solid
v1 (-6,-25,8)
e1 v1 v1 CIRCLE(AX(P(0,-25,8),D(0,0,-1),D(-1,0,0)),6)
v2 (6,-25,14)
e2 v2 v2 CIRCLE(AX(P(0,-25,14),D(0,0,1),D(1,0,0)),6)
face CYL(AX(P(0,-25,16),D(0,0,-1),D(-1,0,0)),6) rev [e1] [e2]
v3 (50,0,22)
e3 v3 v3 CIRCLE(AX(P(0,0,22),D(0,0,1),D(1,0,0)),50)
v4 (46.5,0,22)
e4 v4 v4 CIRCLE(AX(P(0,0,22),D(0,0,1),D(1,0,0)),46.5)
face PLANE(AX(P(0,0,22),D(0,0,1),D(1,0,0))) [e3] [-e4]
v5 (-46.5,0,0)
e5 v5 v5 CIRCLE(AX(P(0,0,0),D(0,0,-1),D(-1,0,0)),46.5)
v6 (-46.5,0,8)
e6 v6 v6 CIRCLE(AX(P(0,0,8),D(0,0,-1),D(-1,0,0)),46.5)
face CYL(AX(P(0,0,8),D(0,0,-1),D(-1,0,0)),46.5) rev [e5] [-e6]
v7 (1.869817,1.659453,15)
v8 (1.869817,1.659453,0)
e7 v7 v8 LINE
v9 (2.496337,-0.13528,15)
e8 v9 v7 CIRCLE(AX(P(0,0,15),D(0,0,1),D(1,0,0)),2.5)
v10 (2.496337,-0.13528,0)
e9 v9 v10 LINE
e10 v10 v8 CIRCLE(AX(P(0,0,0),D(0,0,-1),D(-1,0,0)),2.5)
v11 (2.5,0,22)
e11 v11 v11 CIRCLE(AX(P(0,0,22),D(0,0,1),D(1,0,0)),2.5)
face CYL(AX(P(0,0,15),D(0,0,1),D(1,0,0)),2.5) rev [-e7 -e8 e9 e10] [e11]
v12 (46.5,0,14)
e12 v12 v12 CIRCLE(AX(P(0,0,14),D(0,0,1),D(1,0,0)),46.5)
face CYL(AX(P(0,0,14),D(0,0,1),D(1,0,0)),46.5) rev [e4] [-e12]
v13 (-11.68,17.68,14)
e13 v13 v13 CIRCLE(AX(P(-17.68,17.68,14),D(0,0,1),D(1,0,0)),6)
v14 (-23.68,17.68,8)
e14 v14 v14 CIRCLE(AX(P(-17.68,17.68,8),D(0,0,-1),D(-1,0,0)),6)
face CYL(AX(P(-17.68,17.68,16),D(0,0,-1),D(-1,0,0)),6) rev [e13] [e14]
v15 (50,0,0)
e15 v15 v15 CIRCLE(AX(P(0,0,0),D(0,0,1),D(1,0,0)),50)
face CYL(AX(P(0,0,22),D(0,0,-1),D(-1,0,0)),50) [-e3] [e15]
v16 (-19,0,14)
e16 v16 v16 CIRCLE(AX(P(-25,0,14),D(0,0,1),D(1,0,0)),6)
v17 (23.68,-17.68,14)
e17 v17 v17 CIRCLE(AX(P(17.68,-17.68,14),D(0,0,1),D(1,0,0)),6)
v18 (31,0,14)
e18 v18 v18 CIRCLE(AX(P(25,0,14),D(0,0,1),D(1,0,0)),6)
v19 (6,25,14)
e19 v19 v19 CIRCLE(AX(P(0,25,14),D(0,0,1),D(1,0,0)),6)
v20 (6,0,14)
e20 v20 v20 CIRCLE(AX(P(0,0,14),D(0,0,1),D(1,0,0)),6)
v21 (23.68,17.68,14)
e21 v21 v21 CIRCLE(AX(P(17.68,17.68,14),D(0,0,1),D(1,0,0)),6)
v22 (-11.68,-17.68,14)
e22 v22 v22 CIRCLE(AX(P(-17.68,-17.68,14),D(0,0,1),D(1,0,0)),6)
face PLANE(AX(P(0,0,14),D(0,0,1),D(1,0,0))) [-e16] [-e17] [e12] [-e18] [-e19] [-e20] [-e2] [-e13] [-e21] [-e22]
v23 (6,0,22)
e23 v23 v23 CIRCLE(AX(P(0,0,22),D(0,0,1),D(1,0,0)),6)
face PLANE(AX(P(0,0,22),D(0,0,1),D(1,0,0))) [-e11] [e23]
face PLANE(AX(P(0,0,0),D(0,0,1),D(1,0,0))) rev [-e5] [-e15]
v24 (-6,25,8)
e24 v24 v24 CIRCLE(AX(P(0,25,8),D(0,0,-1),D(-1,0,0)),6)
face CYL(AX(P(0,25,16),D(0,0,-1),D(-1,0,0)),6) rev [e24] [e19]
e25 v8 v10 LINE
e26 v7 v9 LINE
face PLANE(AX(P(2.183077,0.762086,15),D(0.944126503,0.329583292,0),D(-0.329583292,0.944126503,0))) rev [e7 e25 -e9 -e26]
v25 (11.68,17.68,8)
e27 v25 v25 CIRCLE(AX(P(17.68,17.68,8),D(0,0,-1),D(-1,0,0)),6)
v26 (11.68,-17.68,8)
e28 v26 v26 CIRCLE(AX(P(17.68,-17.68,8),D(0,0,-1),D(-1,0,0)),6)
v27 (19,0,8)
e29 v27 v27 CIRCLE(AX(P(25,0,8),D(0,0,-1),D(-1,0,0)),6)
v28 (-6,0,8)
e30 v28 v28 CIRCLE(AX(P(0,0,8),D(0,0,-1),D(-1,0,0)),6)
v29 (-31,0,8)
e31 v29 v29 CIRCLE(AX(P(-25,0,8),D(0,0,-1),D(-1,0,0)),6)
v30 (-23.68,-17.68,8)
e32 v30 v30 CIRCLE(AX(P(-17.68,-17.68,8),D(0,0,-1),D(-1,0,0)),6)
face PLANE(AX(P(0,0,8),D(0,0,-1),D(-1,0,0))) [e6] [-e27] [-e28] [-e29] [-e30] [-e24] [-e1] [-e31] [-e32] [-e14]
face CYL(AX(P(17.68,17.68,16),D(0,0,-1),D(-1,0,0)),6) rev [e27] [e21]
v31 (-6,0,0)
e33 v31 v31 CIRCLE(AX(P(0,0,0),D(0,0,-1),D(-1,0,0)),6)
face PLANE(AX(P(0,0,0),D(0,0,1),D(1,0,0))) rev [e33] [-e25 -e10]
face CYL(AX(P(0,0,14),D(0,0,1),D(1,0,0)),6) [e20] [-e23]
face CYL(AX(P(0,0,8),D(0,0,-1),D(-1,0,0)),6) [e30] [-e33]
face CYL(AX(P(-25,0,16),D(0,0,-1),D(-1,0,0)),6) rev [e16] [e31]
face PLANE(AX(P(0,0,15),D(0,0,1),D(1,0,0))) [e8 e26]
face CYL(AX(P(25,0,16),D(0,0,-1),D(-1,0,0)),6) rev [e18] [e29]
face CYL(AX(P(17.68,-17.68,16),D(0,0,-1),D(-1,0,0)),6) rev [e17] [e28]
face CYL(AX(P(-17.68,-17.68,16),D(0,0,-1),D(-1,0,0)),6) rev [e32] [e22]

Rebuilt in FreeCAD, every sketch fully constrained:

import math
import FreeCAD as App
import Part
import Sketcher

doc = App.newDocument("Part")
body = doc.addObject("PartDesign::Body", "Body")

sketch1 = body.newObject("Sketcher::SketchObject", "Sketch")
sketch1.AttachmentSupport = (doc.getObject("XY_Plane"), [""])
sketch1.MapMode = "FlatFace"
sketch1.addGeometry(Part.Circle(App.Vector(0, 0, 0), App.Vector(0, 0, 1), 50), False)
sketch1.addConstraint([
    Sketcher.Constraint("Coincident", 0, 3, -1, 1),
    Sketcher.Constraint("Diameter", 0, 100.0),
])
pad1 = body.newObject("PartDesign::Pad", "Pad")
pad1.Profile = sketch1
pad1.Length = 22

sketch2 = body.newObject("Sketcher::SketchObject", "Sketch001")
sketch2.AttachmentSupport = (doc.getObject("XY_Plane"), [""])
sketch2.MapMode = "FlatFace"
sketch2.AttachmentOffset = App.Placement(App.Vector(0, 0, 22), App.Rotation())
sketch2.addGeometry(Part.Circle(App.Vector(0, 0, 0), App.Vector(0, 0, 1), 2.5), False)
sketch2.addConstraint([
    Sketcher.Constraint("Coincident", 0, 3, -1, 1),
    Sketcher.Constraint("Diameter", 0, 5.0),
])
pocket1 = body.newObject("PartDesign::Pocket", "Pocket")
pocket1.Profile = sketch2
pocket1.Length = 7

sketch3 = body.newObject("Sketcher::SketchObject", "Sketch002")
sketch3.AttachmentSupport = (doc.getObject("XY_Plane"), [""])
sketch3.MapMode = "FlatFace"
sketch3.AttachmentOffset = App.Placement(App.Vector(0, 0, 15), App.Rotation())
sketch3.addGeometry([
    Part.ArcOfCircle(Part.Circle(App.Vector(0, 0, 0), App.Vector(0, 0, 1), 2.5), math.radians(42), math.radians(180)),
    Part.LineSegment(App.Vector(1.9, 1.7, 0), App.Vector(2.5, -0.1, 0)),
    Part.ArcOfCircle(Part.Circle(App.Vector(0, 0, 0), App.Vector(0, 0, 1), 2.5), math.radians(-180), math.radians(-3)),
], False)
sketch3.addConstraint([
    Sketcher.Constraint("Coincident", 0, 1, 1, 1),
    Sketcher.Constraint("Coincident", 1, 2, 2, 2),
    Sketcher.Constraint("Tangent", 2, 1, 0, 2),
    Sketcher.Constraint("Coincident", 0, 3, -1, 1),
    Sketcher.Constraint("Equal", 0, 2),
    Sketcher.Constraint("PointOnObject", 2, 1, -1),
    Sketcher.Constraint("Radius", 0, 2.5),
    Sketcher.Constraint("DistanceY", 1, 2, -1, 1, 0.13528),
    Sketcher.Constraint("DistanceX", 0, 1, 1, 2, 0.62652),
])
pocket2 = body.newObject("PartDesign::Pocket", "Pocket001")
pocket2.Profile = sketch3
pocket2.Length = 15

sketch4 = body.newObject("Sketcher::SketchObject", "Sketch003")
sketch4.AttachmentSupport = (doc.getObject("XY_Plane"), [""])
sketch4.MapMode = "FlatFace"
sketch4.addGeometry([
    Part.Circle(App.Vector(0, 0, 0), App.Vector(0, 0, 1), 46),
    Part.Circle(App.Vector(0, 0, 0), App.Vector(0, 0, 1), 6),
], False)
sketch4.addConstraint([
    Sketcher.Constraint("Coincident", 0, 3, -1, 1),
    Sketcher.Constraint("Coincident", 1, 3, -1, 1),
    Sketcher.Constraint("Diameter", 0, 93.0),
    Sketcher.Constraint("Diameter", 1, 12.0),
])
pocket3 = body.newObject("PartDesign::Pocket", "Pocket002")
pocket3.Profile = sketch4
pocket3.Length = 8
pocket3.Reversed = True

sketch5 = body.newObject("Sketcher::SketchObject", "Sketch004")
sketch5.AttachmentSupport = (doc.getObject("XY_Plane"), [""])
sketch5.MapMode = "FlatFace"
sketch5.AttachmentOffset = App.Placement(App.Vector(0, 0, 14), App.Rotation())
sketch5.addGeometry([
    Part.Circle(App.Vector(0, 0, 0), App.Vector(0, 0, 1), 46),
    Part.Circle(App.Vector(0, 0, 0), App.Vector(0, 0, 1), 6),
], False)
sketch5.addConstraint([
    Sketcher.Constraint("Coincident", 0, 3, -1, 1),
    Sketcher.Constraint("Coincident", 1, 3, -1, 1),
    Sketcher.Constraint("Diameter", 0, 93.0),
    Sketcher.Constraint("Diameter", 1, 12.0),
])
pocket4 = body.newObject("PartDesign::Pocket", "Pocket003")
pocket4.Profile = sketch5
pocket4.Length = 8
pocket4.Reversed = True

sketch6 = body.newObject("Sketcher::SketchObject", "Sketch005")
sketch6.AttachmentSupport = (doc.getObject("XY_Plane"), [""])
sketch6.MapMode = "FlatFace"
sketch6.AttachmentOffset = App.Placement(App.Vector(0, 0, 8), App.Rotation())
sketch6.addGeometry(Part.Circle(App.Vector(25, 0, 0), App.Vector(0, 0, 1), 6), False)
sketch6.addConstraint([
    Sketcher.Constraint("PointOnObject", 0, 3, -1),
    Sketcher.Constraint("Diameter", 0, 12.0),
    Sketcher.Constraint("DistanceX", -1, 1, 0, 3, 25.0),
])
pocket5 = body.newObject("PartDesign::Pocket", "Pocket004")
pocket5.Profile = sketch6
pocket5.Length = 8
pocket5.Reversed = True

sketch7 = body.newObject("Sketcher::SketchObject", "Sketch006")
sketch7.AttachmentSupport = (doc.getObject("XY_Plane"), [""])
sketch7.MapMode = "FlatFace"
sketch7.AttachmentOffset = App.Placement(App.Vector(0, 0, 8), App.Rotation())
sketch7.addGeometry(Part.Circle(App.Vector(0, 25, 0), App.Vector(0, 0, 1), 6), False)
sketch7.addConstraint([
    Sketcher.Constraint("PointOnObject", 0, 3, -2),
    Sketcher.Constraint("Diameter", 0, 12.0),
    Sketcher.Constraint("DistanceY", -1, 1, 0, 3, 25.0),
])
pocket6 = body.newObject("PartDesign::Pocket", "Pocket005")
pocket6.Profile = sketch7
pocket6.Length = 8
pocket6.Reversed = True

sketch8 = body.newObject("Sketcher::SketchObject", "Sketch007")
sketch8.AttachmentSupport = (doc.getObject("XY_Plane"), [""])
sketch8.MapMode = "FlatFace"
sketch8.AttachmentOffset = App.Placement(App.Vector(0, 0, 8), App.Rotation())
sketch8.addGeometry(Part.Circle(App.Vector(-25, 0, 0), App.Vector(0, 0, 1), 6), False)
sketch8.addConstraint([
    Sketcher.Constraint("PointOnObject", 0, 3, -1),
    Sketcher.Constraint("Diameter", 0, 12.0),
    Sketcher.Constraint("DistanceX", 0, 3, -1, 1, 25.0),
])
pocket7 = body.newObject("PartDesign::Pocket", "Pocket006")
pocket7.Profile = sketch8
pocket7.Length = 8
pocket7.Reversed = True

sketch9 = body.newObject("Sketcher::SketchObject", "Sketch008")
sketch9.AttachmentSupport = (doc.getObject("XY_Plane"), [""])
sketch9.MapMode = "FlatFace"
sketch9.AttachmentOffset = App.Placement(App.Vector(0, 0, 8), App.Rotation())
sketch9.addGeometry(Part.Circle(App.Vector(0, -25, 0), App.Vector(0, 0, 1), 6), False)
sketch9.addConstraint([
    Sketcher.Constraint("PointOnObject", 0, 3, -2),
    Sketcher.Constraint("Diameter", 0, 12.0),
    Sketcher.Constraint("DistanceY", 0, 3, -1, 1, 25.0),
])
pocket8 = body.newObject("PartDesign::Pocket", "Pocket007")
pocket8.Profile = sketch9
pocket8.Length = 8
pocket8.Reversed = True

sketch10 = body.newObject("Sketcher::SketchObject", "Sketch009")
sketch10.AttachmentSupport = (doc.getObject("XY_Plane"), [""])
sketch10.MapMode = "FlatFace"
sketch10.AttachmentOffset = App.Placement(App.Vector(0, 0, 8), App.Rotation())
sketch10.addGeometry(Part.Circle(App.Vector(18, 18, 0), App.Vector(0, 0, 1), 6), False)
sketch10.addConstraint([
    Sketcher.Constraint("Diameter", 0, 12.0),
    Sketcher.Constraint("DistanceX", -1, 1, 0, 3, 17.68),
    Sketcher.Constraint("DistanceY", -1, 1, 0, 3, 17.68),
])
pocket9 = body.newObject("PartDesign::Pocket", "Pocket008")
pocket9.Profile = sketch10
pocket9.Length = 8
pocket9.Reversed = True

sketch11 = body.newObject("Sketcher::SketchObject", "Sketch010")
sketch11.AttachmentSupport = (doc.getObject("XY_Plane"), [""])
sketch11.MapMode = "FlatFace"
sketch11.AttachmentOffset = App.Placement(App.Vector(0, 0, 8), App.Rotation())
sketch11.addGeometry(Part.Circle(App.Vector(-18, 18, 0), App.Vector(0, 0, 1), 6), False)
sketch11.addConstraint([
    Sketcher.Constraint("Diameter", 0, 12.0),
    Sketcher.Constraint("DistanceX", 0, 3, -1, 1, 17.68),
    Sketcher.Constraint("DistanceY", -1, 1, 0, 3, 17.68),
])
pocket10 = body.newObject("PartDesign::Pocket", "Pocket009")
pocket10.Profile = sketch11
pocket10.Length = 8
pocket10.Reversed = True

sketch12 = body.newObject("Sketcher::SketchObject", "Sketch011")
sketch12.AttachmentSupport = (doc.getObject("XY_Plane"), [""])
sketch12.MapMode = "FlatFace"
sketch12.AttachmentOffset = App.Placement(App.Vector(0, 0, 8), App.Rotation())
sketch12.addGeometry(Part.Circle(App.Vector(18, -18, 0), App.Vector(0, 0, 1), 6), False)
sketch12.addConstraint([
    Sketcher.Constraint("Diameter", 0, 12.0),
    Sketcher.Constraint("DistanceX", -1, 1, 0, 3, 17.68),
    Sketcher.Constraint("DistanceY", 0, 3, -1, 1, 17.68),
])
pocket11 = body.newObject("PartDesign::Pocket", "Pocket010")
pocket11.Profile = sketch12
pocket11.Length = 8
pocket11.Reversed = True

sketch13 = body.newObject("Sketcher::SketchObject", "Sketch012")
sketch13.AttachmentSupport = (doc.getObject("XY_Plane"), [""])
sketch13.MapMode = "FlatFace"
sketch13.AttachmentOffset = App.Placement(App.Vector(0, 0, 8), App.Rotation())
sketch13.addGeometry(Part.Circle(App.Vector(-18, -18, 0), App.Vector(0, 0, 1), 6), False)
sketch13.addConstraint([
    Sketcher.Constraint("Diameter", 0, 12.0),
    Sketcher.Constraint("DistanceX", 0, 3, -1, 1, 17.68),
    Sketcher.Constraint("DistanceY", 0, 3, -1, 1, 17.68),
])
pocket12 = body.newObject("PartDesign::Pocket", "Pocket011")
pocket12.Profile = sketch13
pocket12.Length = 8
pocket12.Reversed = True

doc.recompute()
